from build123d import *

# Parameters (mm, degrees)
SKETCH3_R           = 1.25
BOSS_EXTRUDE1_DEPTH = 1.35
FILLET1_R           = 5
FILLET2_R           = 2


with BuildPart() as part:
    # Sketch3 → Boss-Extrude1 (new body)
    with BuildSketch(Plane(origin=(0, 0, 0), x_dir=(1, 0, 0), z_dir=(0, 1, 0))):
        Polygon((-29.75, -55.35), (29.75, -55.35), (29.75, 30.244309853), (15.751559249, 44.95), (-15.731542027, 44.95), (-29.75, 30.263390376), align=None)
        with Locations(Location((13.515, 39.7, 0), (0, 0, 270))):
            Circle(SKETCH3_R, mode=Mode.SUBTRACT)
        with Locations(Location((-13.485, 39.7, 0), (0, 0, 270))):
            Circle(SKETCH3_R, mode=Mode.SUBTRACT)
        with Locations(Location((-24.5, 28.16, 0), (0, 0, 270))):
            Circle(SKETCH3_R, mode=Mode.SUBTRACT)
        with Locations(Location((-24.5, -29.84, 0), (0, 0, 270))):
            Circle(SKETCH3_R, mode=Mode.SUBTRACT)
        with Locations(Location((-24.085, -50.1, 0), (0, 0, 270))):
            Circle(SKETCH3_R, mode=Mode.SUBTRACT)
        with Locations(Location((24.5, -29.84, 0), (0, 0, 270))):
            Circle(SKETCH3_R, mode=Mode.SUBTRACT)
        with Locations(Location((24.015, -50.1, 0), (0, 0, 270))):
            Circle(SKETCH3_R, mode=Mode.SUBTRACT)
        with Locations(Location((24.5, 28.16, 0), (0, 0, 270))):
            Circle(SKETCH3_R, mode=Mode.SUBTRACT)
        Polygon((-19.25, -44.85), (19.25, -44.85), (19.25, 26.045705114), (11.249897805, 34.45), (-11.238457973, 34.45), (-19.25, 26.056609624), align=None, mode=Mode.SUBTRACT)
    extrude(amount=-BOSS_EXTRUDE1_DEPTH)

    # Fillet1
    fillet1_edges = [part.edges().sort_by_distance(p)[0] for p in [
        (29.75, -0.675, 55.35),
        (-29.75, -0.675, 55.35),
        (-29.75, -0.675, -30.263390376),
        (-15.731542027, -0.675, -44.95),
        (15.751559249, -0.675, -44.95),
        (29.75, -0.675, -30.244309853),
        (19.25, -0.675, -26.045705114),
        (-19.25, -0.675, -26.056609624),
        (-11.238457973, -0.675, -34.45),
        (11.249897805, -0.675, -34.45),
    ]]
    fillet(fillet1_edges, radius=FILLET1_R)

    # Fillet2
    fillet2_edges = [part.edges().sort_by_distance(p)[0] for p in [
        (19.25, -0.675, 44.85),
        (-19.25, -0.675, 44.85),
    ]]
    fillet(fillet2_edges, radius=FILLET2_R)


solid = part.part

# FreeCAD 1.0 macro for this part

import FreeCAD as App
import Part
import Sketcher

V = App.Vector


def edges_at(feature, points):
    """Names of the edges that pass closest to the given points."""
    edges = feature.Shape.Edges
    near = lambda p: min(range(len(edges)), key=lambda i: edges[i].distToShape(Part.Vertex(*p))[0])
    return sorted({f"Edge{near(p) + 1}" for p in points})


def add_polygon(sketch, points):
    """Adds a closed chain of lines whose ends are joined by coincident constraints."""
    first, n = sketch.GeometryCount, len(points)
    for a, b in zip(points, points[1:] + points[:1]):
        sketch.addGeometry(Part.LineSegment(App.Vector(*a, 0), App.Vector(*b, 0)), False)
    for i in range(n):
        sketch.addConstraint(Sketcher.Constraint("Coincident", first + i, 2, first + (i + 1) % n, 1))

doc = App.newDocument("Part")
body = doc.addObject("PartDesign::Body", "Body")

sketch1 = body.newObject("Sketcher::SketchObject", "Sketch")
sketch1.AttachmentSupport = (doc.getObject("XZ_Plane"), [""])
sketch1.MapMode = "FlatFace"
add_polygon(sketch1, [(-29.8, 55.4), (29.8, 55.4), (29.8, -30.2), (15.8, -45), (-15.7, -45), (-29.8, -30.3)])
sketch1.addGeometry(Part.Circle(V(-24.1, 50.1, 0), V(0, 0, 1), 1.2), False)
sketch1.addGeometry(Part.Circle(V(-24.5, 29.8, 0), V(0, 0, 1), 1.2), False)
sketch1.addGeometry(Part.Circle(V(24, 50.1, 0), V(0, 0, 1), 1.2), False)
sketch1.addGeometry(Part.Circle(V(24.5, 29.8, 0), V(0, 0, 1), 1.2), False)
add_polygon(sketch1, [(19.2, 44.9), (-19.2, 44.9), (-19.2, -26.1), (-11.2, -34.5), (11.2, -34.5), (19.2, -26)])
sketch1.addGeometry(Part.Circle(V(-24.5, -28.2, 0), V(0, 0, 1), 1.2), False)
sketch1.addGeometry(Part.Circle(V(-13.5, -39.7, 0), V(0, 0, 1), 1.2), False)
sketch1.addGeometry(Part.Circle(V(24.5, -28.2, 0), V(0, 0, 1), 1.2), False)
sketch1.addGeometry(Part.Circle(V(13.5, -39.7, 0), V(0, 0, 1), 1.2), False)
sketch1.addConstraint(Sketcher.Constraint("Horizontal", 0))
sketch1.addConstraint(Sketcher.Constraint("Vertical", 1))
sketch1.addConstraint(Sketcher.Constraint("Horizontal", 3))
sketch1.addConstraint(Sketcher.Constraint("Vertical", 5))
sketch1.addConstraint(Sketcher.Constraint("Horizontal", 10))
sketch1.addConstraint(Sketcher.Constraint("Vertical", 11))
sketch1.addConstraint(Sketcher.Constraint("Horizontal", 13))
sketch1.addConstraint(Sketcher.Constraint("Vertical", 15))
sketch1.addConstraint(Sketcher.Constraint("Equal", 6, 7))
sketch1.addConstraint(Sketcher.Constraint("Equal", 7, 8))
sketch1.addConstraint(Sketcher.Constraint("Equal", 8, 9))
sketch1.addConstraint(Sketcher.Constraint("Equal", 9, 16))
sketch1.addConstraint(Sketcher.Constraint("Equal", 16, 17))
sketch1.addConstraint(Sketcher.Constraint("Equal", 17, 18))
sketch1.addConstraint(Sketcher.Constraint("Equal", 18, 19))
sketch1.addConstraint(Sketcher.Constraint("Symmetric", 7, 3, 9, 3, -2))
sketch1.addConstraint(Sketcher.Constraint("Symmetric", 16, 3, 18, 3, -2))
sketch1.addConstraint(Sketcher.Constraint("Parallel", 4, 12))
sketch1.addConstraint(Sketcher.Constraint("Parallel", 2, 14))
sketch1.addConstraint(Sketcher.Constraint("Horizontal", 6, 3, 8, 3))
sketch1.addConstraint(Sketcher.Constraint("Horizontal", 17, 3, 19, 3))
sketch1.addConstraint(Sketcher.Constraint("Vertical", 7, 3, 16, 3))
sketch1.addConstraint(Sketcher.Constraint("Equal", 2, 4))
sketch1.addConstraint(Sketcher.Constraint("Equal", 12, 14))
sketch1.addConstraint(Sketcher.Constraint("Diameter", 6, 2.5))
sketch1.addConstraint(Sketcher.Constraint("DistanceX", 0, 1, 0, 2, 59.5))
sketch1.addConstraint(Sketcher.Constraint("DistanceX", 10, 2, 10, 1, 38.5))
sketch1.addConstraint(Sketcher.Constraint("DistanceX", 7, 3, 9, 3, 49.0))
sketch1.addConstraint(Sketcher.Constraint("DistanceY", 16, 3, 7, 3, 58.0))
sketch1.addConstraint(Sketcher.Constraint("DistanceX", 17, 3, 19, 3, 27.0))
sketch1.addConstraint(Sketcher.Constraint("DistanceY", -1, 1, 6, 3, 50.1))
sketch1.addConstraint(Sketcher.Constraint("DistanceY", 17, 3, -1, 1, 39.7))
sketch1.addConstraint(Sketcher.Constraint("DistanceX", 6, 3, 8, 3, 48.1))
sketch1.addConstraint(Sketcher.Constraint("DistanceX", 6, 3, 17, 3, 10.6))
sketch1.addConstraint(Sketcher.Constraint("DistanceX", 5, 2, 10, 2, 10.5))
sketch1.addConstraint(Sketcher.Constraint("DistanceY", 10, 2, 5, 2, 10.5))
sketch1.addConstraint(Sketcher.Constraint("DistanceY", 3, 2, 12, 2, 10.5))
sketch1.addConstraint(Sketcher.Constraint("DistanceY", -1, 1, 7, 3, 29.84))
sketch1.addConstraint(Sketcher.Constraint("DistanceX", -1, 1, 0, 2, 29.75))
sketch1.addConstraint(Sketcher.Constraint("DistanceY", -1, 1, 0, 2, 55.35))
sketch1.addConstraint(Sketcher.Constraint("DistanceY", 2, 2, -1, 1, 44.95))
sketch1.addConstraint(Sketcher.Constraint("DistanceX", 3, 2, 3, 1, 31.483101))
sketch1.addConstraint(Sketcher.Constraint("DistanceX", 6, 3, -1, 1, 24.085))
sketch1.addConstraint(Sketcher.Constraint("DistanceY", 1, 2, 1, 1, 85.59431))
sketch1.addConstraint(Sketcher.Constraint("DistanceY", 5, 1, 5, 2, 85.61339))
sketch1.addConstraint(Sketcher.Constraint("DistanceY", 11, 2, 11, 1, 70.90661))
pad1 = body.newObject("PartDesign::Pad", "Pad")
pad1.Profile = sketch1
pad1.Length = 1.35
doc.recompute()

fillet = body.newObject("PartDesign::Fillet", "Fillet")
fillet.Base = (pad1, edges_at(pad1, [
    (29.75, -0.675, 55.35),
    (-29.75, -0.675, 55.35),
    (-29.75, -0.675, -30.263),
    (-15.732, -0.675, -44.95),
    (15.752, -0.675, -44.95),
    (29.75, -0.675, -30.244),
    (19.25, -0.675, -26.046),
    (-19.25, -0.675, -26.057),
    (-11.238, -0.675, -34.45),
    (11.25, -0.675, -34.45),
]))
fillet.Radius = 5
doc.recompute()

fillet2 = body.newObject("PartDesign::Fillet", "Fillet001")
fillet2.Base = (fillet, edges_at(fillet, [(19.25, -0.675, 44.85), (-19.25, -0.675, 44.85)]))
fillet2.Radius = 2

doc.recompute()
